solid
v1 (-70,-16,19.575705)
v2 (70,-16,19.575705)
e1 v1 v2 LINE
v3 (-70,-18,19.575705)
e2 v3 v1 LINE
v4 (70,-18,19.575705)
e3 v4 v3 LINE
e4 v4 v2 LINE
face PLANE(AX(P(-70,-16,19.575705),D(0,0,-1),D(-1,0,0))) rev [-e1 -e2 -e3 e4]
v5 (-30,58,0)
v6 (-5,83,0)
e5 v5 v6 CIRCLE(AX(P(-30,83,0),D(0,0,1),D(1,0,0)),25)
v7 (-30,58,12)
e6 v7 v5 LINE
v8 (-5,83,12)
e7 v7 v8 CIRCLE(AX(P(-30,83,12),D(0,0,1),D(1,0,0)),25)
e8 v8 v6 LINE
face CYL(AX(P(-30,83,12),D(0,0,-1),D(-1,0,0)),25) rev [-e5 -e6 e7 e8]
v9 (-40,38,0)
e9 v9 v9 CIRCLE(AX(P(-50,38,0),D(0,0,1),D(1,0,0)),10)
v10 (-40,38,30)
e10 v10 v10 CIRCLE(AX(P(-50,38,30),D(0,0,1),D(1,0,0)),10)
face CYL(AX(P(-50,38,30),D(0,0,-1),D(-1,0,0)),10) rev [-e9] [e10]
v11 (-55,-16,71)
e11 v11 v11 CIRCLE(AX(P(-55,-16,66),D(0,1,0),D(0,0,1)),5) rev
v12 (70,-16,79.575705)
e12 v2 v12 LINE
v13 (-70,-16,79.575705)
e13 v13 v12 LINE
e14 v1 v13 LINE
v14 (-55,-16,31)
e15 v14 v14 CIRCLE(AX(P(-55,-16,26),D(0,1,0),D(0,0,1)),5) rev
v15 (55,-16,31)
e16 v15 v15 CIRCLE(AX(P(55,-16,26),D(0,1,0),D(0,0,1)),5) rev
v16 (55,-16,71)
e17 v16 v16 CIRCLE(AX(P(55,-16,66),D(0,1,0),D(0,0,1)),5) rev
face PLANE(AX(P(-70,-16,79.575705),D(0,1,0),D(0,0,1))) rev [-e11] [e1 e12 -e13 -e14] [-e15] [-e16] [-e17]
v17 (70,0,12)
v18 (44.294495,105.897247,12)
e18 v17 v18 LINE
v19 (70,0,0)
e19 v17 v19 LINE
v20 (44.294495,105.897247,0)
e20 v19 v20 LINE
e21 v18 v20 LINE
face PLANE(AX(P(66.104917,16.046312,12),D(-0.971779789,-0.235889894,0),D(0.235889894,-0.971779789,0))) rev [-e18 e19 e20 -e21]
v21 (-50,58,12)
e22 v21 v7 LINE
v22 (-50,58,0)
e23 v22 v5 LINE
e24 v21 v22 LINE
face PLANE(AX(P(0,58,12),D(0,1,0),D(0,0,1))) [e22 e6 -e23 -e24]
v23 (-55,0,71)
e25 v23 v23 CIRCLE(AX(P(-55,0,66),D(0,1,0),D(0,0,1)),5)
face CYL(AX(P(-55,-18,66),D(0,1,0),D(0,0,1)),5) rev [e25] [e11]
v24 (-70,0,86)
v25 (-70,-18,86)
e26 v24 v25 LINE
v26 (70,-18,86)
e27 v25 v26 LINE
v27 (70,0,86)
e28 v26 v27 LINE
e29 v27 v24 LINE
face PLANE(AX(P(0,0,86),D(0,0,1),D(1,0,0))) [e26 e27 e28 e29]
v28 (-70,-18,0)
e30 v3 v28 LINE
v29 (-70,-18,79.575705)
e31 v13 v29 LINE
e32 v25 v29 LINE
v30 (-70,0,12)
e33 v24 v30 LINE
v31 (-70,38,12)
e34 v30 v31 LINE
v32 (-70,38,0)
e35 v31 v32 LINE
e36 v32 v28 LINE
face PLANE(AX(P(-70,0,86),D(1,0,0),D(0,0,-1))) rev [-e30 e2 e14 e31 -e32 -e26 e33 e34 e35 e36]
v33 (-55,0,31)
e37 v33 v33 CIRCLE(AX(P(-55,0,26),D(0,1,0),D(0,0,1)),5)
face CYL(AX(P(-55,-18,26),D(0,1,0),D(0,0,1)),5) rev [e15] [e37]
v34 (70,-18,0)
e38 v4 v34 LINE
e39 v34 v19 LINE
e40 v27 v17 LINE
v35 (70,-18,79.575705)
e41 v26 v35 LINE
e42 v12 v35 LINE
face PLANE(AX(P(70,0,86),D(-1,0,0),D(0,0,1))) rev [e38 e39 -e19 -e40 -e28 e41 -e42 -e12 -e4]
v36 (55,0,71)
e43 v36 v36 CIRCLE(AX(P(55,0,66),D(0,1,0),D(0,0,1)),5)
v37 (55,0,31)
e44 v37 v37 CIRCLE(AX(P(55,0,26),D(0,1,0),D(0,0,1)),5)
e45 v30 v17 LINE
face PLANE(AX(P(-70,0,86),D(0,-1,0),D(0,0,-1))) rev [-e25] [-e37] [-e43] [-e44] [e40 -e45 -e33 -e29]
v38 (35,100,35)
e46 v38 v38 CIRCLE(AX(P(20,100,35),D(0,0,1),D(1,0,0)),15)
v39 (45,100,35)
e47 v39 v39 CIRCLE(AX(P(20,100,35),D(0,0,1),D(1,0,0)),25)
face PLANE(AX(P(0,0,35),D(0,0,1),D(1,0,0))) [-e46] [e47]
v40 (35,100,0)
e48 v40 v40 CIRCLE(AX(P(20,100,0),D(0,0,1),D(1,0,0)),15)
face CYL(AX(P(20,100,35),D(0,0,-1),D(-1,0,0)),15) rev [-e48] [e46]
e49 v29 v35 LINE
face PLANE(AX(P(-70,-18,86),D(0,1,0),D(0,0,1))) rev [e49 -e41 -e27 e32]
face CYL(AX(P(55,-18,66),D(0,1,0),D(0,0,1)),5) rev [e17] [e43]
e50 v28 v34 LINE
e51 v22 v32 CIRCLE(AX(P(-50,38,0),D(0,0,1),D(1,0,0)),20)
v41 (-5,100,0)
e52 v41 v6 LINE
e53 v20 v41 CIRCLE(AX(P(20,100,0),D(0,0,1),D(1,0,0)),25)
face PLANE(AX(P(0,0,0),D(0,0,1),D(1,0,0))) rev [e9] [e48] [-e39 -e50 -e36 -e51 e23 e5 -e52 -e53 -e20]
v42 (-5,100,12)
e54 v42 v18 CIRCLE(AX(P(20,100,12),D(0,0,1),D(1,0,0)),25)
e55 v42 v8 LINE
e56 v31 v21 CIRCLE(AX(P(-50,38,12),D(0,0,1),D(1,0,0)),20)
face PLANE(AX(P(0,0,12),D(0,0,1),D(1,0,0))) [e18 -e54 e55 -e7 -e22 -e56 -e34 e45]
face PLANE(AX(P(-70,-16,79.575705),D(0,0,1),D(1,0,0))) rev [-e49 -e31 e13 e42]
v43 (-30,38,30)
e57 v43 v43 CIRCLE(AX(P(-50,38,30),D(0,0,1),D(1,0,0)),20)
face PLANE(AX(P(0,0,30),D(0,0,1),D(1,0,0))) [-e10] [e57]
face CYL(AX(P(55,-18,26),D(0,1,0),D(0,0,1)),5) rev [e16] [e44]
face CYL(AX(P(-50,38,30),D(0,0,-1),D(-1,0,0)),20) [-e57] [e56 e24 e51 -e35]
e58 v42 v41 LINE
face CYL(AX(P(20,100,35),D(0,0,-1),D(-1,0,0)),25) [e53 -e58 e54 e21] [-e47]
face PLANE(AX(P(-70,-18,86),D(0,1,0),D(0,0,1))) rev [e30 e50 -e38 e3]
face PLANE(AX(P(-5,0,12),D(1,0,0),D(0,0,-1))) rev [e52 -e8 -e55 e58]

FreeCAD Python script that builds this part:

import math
import FreeCAD as App
import Part
import Sketcher
Q = App.Units.Quantity


def add_polygon(sketch, points):
    """Adds a closed chain of lines whose ends are joined by coincident constraints."""
    first, n = sketch.GeometryCount, len(points)
    for a, b in zip(points, points[1:] + points[:1]):
        sketch.addGeometry(Part.LineSegment(App.Vector(*a, 0), App.Vector(*b, 0)), False)
    for i in range(n):
        sketch.addConstraint(Sketcher.Constraint("Coincident", first + i, 2, first + (i + 1) % n, 1))

doc = App.newDocument("Part")
params = doc.addObject("Spreadsheet::Sheet", "Params")
for row, (alias, value) in enumerate([
    ("sketch1_width", "140 mm"),
    ("sketch1_height", "18 mm"),
    ("pad1_length", "86 mm"),
    ("sketch2_radius", "25 mm"),
    ("sketch2_radius2", "20 mm"),
    ("sketch2_width", "140 mm"),
    ("sketch2_height", "38 mm"),
    ("sketch2_height2", "17 mm"),
    ("pad2_length", "12 mm"),
    ("sketch3_diameter", "50 mm"),
    ("sketch3_diameter2", "30 mm"),
    ("pad3_length", "35 mm"),
    ("sketch4_diameter", "40 mm"),
    ("sketch4_diameter2", "20 mm"),
    ("pad4_length", "30 mm"),
    ("sketch5_diameter", "10 mm"),
    ("sketch6_height", "60 mm"),
], start=1):
    params.set(f"A{row}", alias)
    params.set(f"B{row}", "=" + value)
    params.setAlias(f"B{row}", alias)

body = doc.addObject("PartDesign::Body", "Body")

# Sketch on XY plane
sketch1 = body.newObject("Sketcher::SketchObject", "Sketch")
sketch1.AttachmentSupport = (doc.getObject("XY_Plane"), [""])
sketch1.MapMode = "FlatFace"
add_polygon(sketch1, [(-70, 0), (-70, -18), (70, -18), (70, 0)])  # lines 0-3
sketch1.addConstraint(Sketcher.Constraint("Vertical", 0))
sketch1.addConstraint(Sketcher.Constraint("Horizontal", 1))
sketch1.addConstraint(Sketcher.Constraint("Vertical", 2))
sketch1.addConstraint(Sketcher.Constraint("Horizontal", 3))
sketch1.addConstraint(Sketcher.Constraint("Symmetric", 2, 2, 3, 2, -1, 1))
sketch1.addConstraint(Sketcher.Constraint("DistanceX", 1, 1, 1, 2, Q("140 mm")))
sketch1.addConstraint(Sketcher.Constraint("DistanceY", 0, 2, 0, 1, Q("18 mm")))
sketch1.setExpression("Constraints[9]", "Params.sketch1_width")
sketch1.setExpression("Constraints[10]", "Params.sketch1_height")
pad1 = body.newObject("PartDesign::Pad", "Pad")
pad1.Profile = sketch1
pad1.setExpression("Length", "Params.pad1_length")

# Sketch on XY plane
sketch2 = body.newObject("Sketcher::SketchObject", "Sketch001")
sketch2.AttachmentSupport = (doc.getObject("XY_Plane"), [""])
sketch2.MapMode = "FlatFace"
sketch2.addGeometry(Part.LineSegment(App.Vector(-70, 38, 0), App.Vector(-70, 0, 0)), False)
sketch2.addGeometry(Part.LineSegment(App.Vector(-70, 0, 0), App.Vector(70, 0, 0)), False)
sketch2.addGeometry(Part.LineSegment(App.Vector(70, 0, 0), App.Vector(44.294495, 105.897247, 0)), False)
sketch2.addGeometry(Part.ArcOfCircle(Part.Circle(App.Vector(20, 100, 0), App.Vector(0, 0, 1), 25), math.radians(0), math.radians(13.644085)), False)
sketch2.addGeometry(Part.ArcOfCircle(Part.Circle(App.Vector(20, 100, 0), App.Vector(0, 0, 1), 25), math.radians(180), math.radians(360)), False)
sketch2.addGeometry(Part.LineSegment(App.Vector(-5, 100, 0), App.Vector(-5, 83, 0)), False)
sketch2.addGeometry(Part.ArcOfCircle(Part.Circle(App.Vector(-30, 83, 0), App.Vector(0, 0, 1), 25), math.radians(-90), math.radians(0)), False)
sketch2.addGeometry(Part.LineSegment(App.Vector(-30, 58, 0), App.Vector(-50, 58, 0)), False)
sketch2.addGeometry(Part.ArcOfCircle(Part.Circle(App.Vector(-50, 38, 0), App.Vector(0, 0, 1), 20), math.radians(0), math.radians(90)), False)
sketch2.addGeometry(Part.ArcOfCircle(Part.Circle(App.Vector(-50, 38, 0), App.Vector(0, 0, 1), 20), math.radians(180), math.radians(360)), False)
sketch2.addConstraint(Sketcher.Constraint("Coincident", 0, 2, 1, 1))
sketch2.addConstraint(Sketcher.Constraint("Coincident", 1, 2, 2, 1))
sketch2.addConstraint(Sketcher.Constraint("Tangent", 2, 2, 3, 2))
sketch2.addConstraint(Sketcher.Constraint("Tangent", 3, 1, 4, 2))
sketch2.addConstraint(Sketcher.Constraint("Tangent", 4, 1, 5, 1))
sketch2.addConstraint(Sketcher.Constraint("Tangent", 5, 2, 6, 2))
sketch2.addConstraint(Sketcher.Constraint("Tangent", 6, 1, 7, 1))
sketch2.addConstraint(Sketcher.Constraint("Tangent", 7, 2, 8, 2))
sketch2.addConstraint(Sketcher.Constraint("Tangent", 8, 1, 9, 2))
sketch2.addConstraint(Sketcher.Constraint("Tangent", 9, 1, 0, 1))
sketch2.addConstraint(Sketcher.Constraint("Vertical", 0))
sketch2.addConstraint(Sketcher.Constraint("Horizontal", 1))
sketch2.addConstraint(Sketcher.Constraint("Vertical", 5))
sketch2.addConstraint(Sketcher.Constraint("Horizontal", 7))
sketch2.addConstraint(Sketcher.Constraint("Equal", 3, 4))
sketch2.addConstraint(Sketcher.Constraint("Equal", 4, 6))
sketch2.addConstraint(Sketcher.Constraint("Equal", 8, 9))
sketch2.addConstraint(Sketcher.Constraint("Symmetric", 0, 2, 1, 2, -1, 1))
sketch2.addConstraint(Sketcher.Constraint("Horizontal", 4, 3, 3, 1))
sketch2.addConstraint(Sketcher.Constraint("Horizontal", 9, 3, 8, 1))
sketch2.addConstraint(Sketcher.Constraint("Vertical", 6, 1, 8, 1))
sketch2.addConstraint(Sketcher.Constraint("Radius", 3, Q("25 mm")))
sketch2.addConstraint(Sketcher.Constraint("Radius", 8, Q("20 mm")))
sketch2.addConstraint(Sketcher.Constraint("DistanceX", 1, 1, 1, 2, Q("140 mm")))
sketch2.addConstraint(Sketcher.Constraint("DistanceY", 0, 2, 0, 1, Q("38 mm")))
sketch2.addConstraint(Sketcher.Constraint("DistanceY", 5, 2, 5, 1, Q("17 mm")))
sketch2.setExpression("Constraints[21]", "Params.sketch2_radius")
sketch2.setExpression("Constraints[22]", "Params.sketch2_radius2")
sketch2.setExpression("Constraints[23]", "Params.sketch2_width")
sketch2.setExpression("Constraints[24]", "Params.sketch2_height")
sketch2.setExpression("Constraints[25]", "Params.sketch2_height2")
pad2 = body.newObject("PartDesign::Pad", "Pad001")
pad2.Profile = sketch2
pad2.setExpression("Length", "Params.pad2_length")

# Sketch on XY plane
sketch3 = body.newObject("Sketcher::SketchObject", "Sketch002")
sketch3.AttachmentSupport = (doc.getObject("XY_Plane"), [""])
sketch3.MapMode = "FlatFace"
sketch3.addGeometry(Part.Circle(App.Vector(20, 100, 0), App.Vector(0, 0, 1), 25), False)
sketch3.addGeometry(Part.Circle(App.Vector(20, 100, 0), App.Vector(0, 0, 1), 15), False)
sketch3.addConstraint(Sketcher.Constraint("Coincident", 1, 3, 0, 3))
sketch3.addConstraint(Sketcher.Constraint("Diameter", 0, Q("50 mm")))
sketch3.addConstraint(Sketcher.Constraint("Diameter", 1, Q("30 mm")))
sketch3.addConstraint(Sketcher.Constraint("DistanceX", -1, 1, 0, 3, Q("20 mm")))
sketch3.addConstraint(Sketcher.Constraint("DistanceY", -1, 1, 0, 3, Q("100 mm")))
sketch3.setExpression("Constraints[1]", "Params.sketch3_diameter")
sketch3.setExpression("Constraints[2]", "Params.sketch3_diameter2")
pad3 = body.newObject("PartDesign::Pad", "Pad002")
pad3.Profile = sketch3
pad3.setExpression("Length", "Params.pad3_length")

# Sketch on XY plane
sketch4 = body.newObject("Sketcher::SketchObject", "Sketch003")
sketch4.AttachmentSupport = (doc.getObject("XY_Plane"), [""])
sketch4.MapMode = "FlatFace"
sketch4.addGeometry(Part.Circle(App.Vector(-50, 38, 0), App.Vector(0, 0, 1), 20), False)
sketch4.addGeometry(Part.Circle(App.Vector(-50, 38, 0), App.Vector(0, 0, 1), 10), False)
sketch4.addConstraint(Sketcher.Constraint("Coincident", 1, 3, 0, 3))
sketch4.addConstraint(Sketcher.Constraint("Diameter", 0, Q("40 mm")))
sketch4.addConstraint(Sketcher.Constraint("Diameter", 1, Q("20 mm")))
sketch4.addConstraint(Sketcher.Constraint("DistanceX", 0, 3, -1, 1, Q("50 mm")))
sketch4.addConstraint(Sketcher.Constraint("DistanceY", -1, 1, 0, 3, Q("38 mm")))
sketch4.setExpression("Constraints[1]", "Params.sketch4_diameter")
sketch4.setExpression("Constraints[2]", "Params.sketch4_diameter2")
pad4 = body.newObject("PartDesign::Pad", "Pad003")
pad4.Profile = sketch4
pad4.setExpression("Length", "Params.pad4_length")

# Sketch on XZ plane
sketch5 = body.newObject("Sketcher::SketchObject", "Sketch004")
sketch5.AttachmentSupport = (doc.getObject("XZ_Plane"), [""])
sketch5.MapMode = "FlatFace"
sketch5.addGeometry(Part.Circle(App.Vector(-55, 66, 0), App.Vector(0, 0, 1), 5), False)
sketch5.addGeometry(Part.Circle(App.Vector(-55, 26, 0), App.Vector(0, 0, 1), 5), False)
sketch5.addGeometry(Part.Circle(App.Vector(55, 26, 0), App.Vector(0, 0, 1), 5), False)
sketch5.addGeometry(Part.Circle(App.Vector(55, 66, 0), App.Vector(0, 0, 1), 5), False)
sketch5.addConstraint(Sketcher.Constraint("Equal", 0, 1))
sketch5.addConstraint(Sketcher.Constraint("Equal", 1, 2))
sketch5.addConstraint(Sketcher.Constraint("Equal", 2, 3))
sketch5.addConstraint(Sketcher.Constraint("Symmetric", 1, 3, 2, 3, -2))
sketch5.addConstraint(Sketcher.Constraint("Symmetric", 0, 3, 3, 3, -2))
sketch5.addConstraint(Sketcher.Constraint("Vertical", 0, 3, 1, 3))
sketch5.addConstraint(Sketcher.Constraint("Diameter", 0, Q("10 mm")))
sketch5.addConstraint(Sketcher.Constraint("DistanceX", 0, 3, -1, 1, Q("55 mm")))
sketch5.addConstraint(Sketcher.Constraint("DistanceY", -1, 1, 0, 3, Q("66 mm")))
sketch5.addConstraint(Sketcher.Constraint("DistanceY", -1, 1, 1, 3, Q("26 mm")))
sketch5.setExpression("Constraints[6]", "Params.sketch5_diameter")
pocket1 = body.newObject("PartDesign::Pocket", "Pocket")
pocket1.Profile = sketch5
pocket1.Type = "ThroughAll"
pocket1.Reversed = True

# Sketch on YZ plane
sketch6 = body.newObject("Sketcher::SketchObject", "Sketch005")
sketch6.AttachmentSupport = (doc.getObject("YZ_Plane"), [""])
sketch6.MapMode = "FlatFace"
sketch6.AttachmentOffset = App.Placement(App.Vector(0, 0, 70), App.Rotation())
add_polygon(sketch6, [(-16, 79.575705), (-32.179668, 79.575705), (-32.179668, 19.575705), (-16, 19.575705)])  # lines 0-3
sketch6.addConstraint(Sketcher.Constraint("Horizontal", 0))
sketch6.addConstraint(Sketcher.Constraint("Vertical", 1))
sketch6.addConstraint(Sketcher.Constraint("Horizontal", 2))
sketch6.addConstraint(Sketcher.Constraint("Vertical", 3))
sketch6.addConstraint(Sketcher.Constraint("DistanceY", 1, 2, 1, 1, Q("60 mm")))
sketch6.addConstraint(Sketcher.Constraint("DistanceX", 2, 2, -1, 1, Q("16 mm")))
sketch6.addConstraint(Sketcher.Constraint("DistanceX", 0, 2, 0, 1, Q("16.179668 mm")))
sketch6.addConstraint(Sketcher.Constraint("DistanceY", -1, 1, 0, 2, Q("79.575705 mm")))
sketch6.setExpression("Constraints[8]", "Params.sketch6_height")
pocket2 = body.newObject("PartDesign::Pocket", "Pocket001")
pocket2.Profile = sketch6
pocket2.Type = "ThroughAll"

doc.recompute()
